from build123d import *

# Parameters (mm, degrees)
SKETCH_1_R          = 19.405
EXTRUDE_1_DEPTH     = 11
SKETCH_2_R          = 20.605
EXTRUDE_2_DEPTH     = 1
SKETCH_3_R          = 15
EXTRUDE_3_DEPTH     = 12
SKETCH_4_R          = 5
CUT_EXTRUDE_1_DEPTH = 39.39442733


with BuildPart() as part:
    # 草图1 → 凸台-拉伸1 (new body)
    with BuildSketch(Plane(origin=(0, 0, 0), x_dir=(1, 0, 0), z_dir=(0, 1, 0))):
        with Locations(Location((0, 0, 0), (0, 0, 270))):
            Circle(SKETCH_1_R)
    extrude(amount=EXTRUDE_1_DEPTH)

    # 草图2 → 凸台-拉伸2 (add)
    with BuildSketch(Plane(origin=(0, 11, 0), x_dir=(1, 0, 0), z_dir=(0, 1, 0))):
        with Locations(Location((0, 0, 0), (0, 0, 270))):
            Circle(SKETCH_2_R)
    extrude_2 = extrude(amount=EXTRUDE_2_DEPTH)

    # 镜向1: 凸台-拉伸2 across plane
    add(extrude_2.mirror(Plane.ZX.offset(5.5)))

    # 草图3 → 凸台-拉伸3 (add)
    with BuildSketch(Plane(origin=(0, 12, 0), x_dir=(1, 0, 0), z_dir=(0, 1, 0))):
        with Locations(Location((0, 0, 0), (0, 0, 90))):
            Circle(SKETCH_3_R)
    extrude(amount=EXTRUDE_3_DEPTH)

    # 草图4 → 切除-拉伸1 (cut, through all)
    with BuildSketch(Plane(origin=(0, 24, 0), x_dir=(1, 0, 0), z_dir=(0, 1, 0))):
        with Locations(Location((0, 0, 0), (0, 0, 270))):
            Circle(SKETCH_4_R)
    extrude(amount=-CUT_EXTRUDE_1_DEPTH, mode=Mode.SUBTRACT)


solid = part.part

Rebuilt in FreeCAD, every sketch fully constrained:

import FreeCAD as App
import Part
import Sketcher

V = App.Vector
Q = App.Units.Quantity

doc = App.newDocument("Part")
body = doc.addObject("PartDesign::Body", "Body")

sketch1 = doc.addObject("Sketcher::SketchObject", "Sketch")
body.addObject(sketch1)
sketch1.AttachmentSupport = (doc.XZ_Plane, [""])
sketch1.MapMode = "FlatFace"
sketch1.addGeometry(Part.Circle(V(0, 0, 0), V(0, 0, 1), 19), False)
sketch1.addConstraint([
    Sketcher.Constraint("Coincident", 0, 3, -1, 1),
    Sketcher.Constraint("Diameter", 0, Q("38.81 mm")),
])
pad1 = doc.addObject("PartDesign::Pad", "Pad")
body.addObject(pad1)
pad1.Profile = sketch1
pad1.Length = 11
pad1.Reversed = True

sketch2 = doc.addObject("Sketcher::SketchObject", "Sketch001")
body.addObject(sketch2)
sketch2.AttachmentSupport = (doc.XZ_Plane, [""])
sketch2.MapMode = "FlatFace"
sketch2.AttachmentOffset = App.Placement(V(0, 0, -11), App.Rotation())
sketch2.addGeometry(Part.Circle(V(0, 0, 0), V(0, 0, 1), 21), False)
sketch2.addConstraint([
    Sketcher.Constraint("Coincident", 0, 3, -1, 1),
    Sketcher.Constraint("Diameter", 0, Q("41.21 mm")),
])
pad2 = doc.addObject("PartDesign::Pad", "Pad001")
body.addObject(pad2)
pad2.Profile = sketch2
pad2.Length = 1
pad2.Reversed = True
doc.recompute()

datumplane = doc.addObject("PartDesign::Plane", "DatumPlane")
body.addObject(datumplane)
datumplane.AttachmentSupport = (doc.XZ_Plane, [""])
datumplane.MapMode = "FlatFace"
datumplane.AttachmentOffset = App.Placement(V(0, 0, -5.5), App.Rotation())
mirrored = doc.addObject("PartDesign::Mirrored", "Mirrored")
body.addObject(mirrored)
mirrored.Originals = [pad2]
mirrored.MirrorPlane = (datumplane, [""])
body.Tip = mirrored

sketch3 = doc.addObject("Sketcher::SketchObject", "Sketch002")
body.addObject(sketch3)
sketch3.AttachmentSupport = (doc.XZ_Plane, [""])
sketch3.MapMode = "FlatFace"
sketch3.AttachmentOffset = App.Placement(V(0, 0, -12), App.Rotation())
sketch3.addGeometry(Part.Circle(V(0, 0, 0), V(0, 0, 1), 15), False)
sketch3.addConstraint([
    Sketcher.Constraint("Coincident", 0, 3, -1, 1),
    Sketcher.Constraint("Diameter", 0, Q("30 mm")),
])
pad3 = doc.addObject("PartDesign::Pad", "Pad002")
body.addObject(pad3)
pad3.Profile = sketch3
pad3.Length = 12
pad3.Reversed = True

sketch4 = doc.addObject("Sketcher::SketchObject", "Sketch003")
body.addObject(sketch4)
sketch4.AttachmentSupport = (doc.XZ_Plane, [""])
sketch4.MapMode = "FlatFace"
sketch4.AttachmentOffset = App.Placement(V(0, 0, -24), App.Rotation())
sketch4.addGeometry(Part.Circle(V(0, 0, 0), V(0, 0, 1), 5), False)
sketch4.addConstraint([
    Sketcher.Constraint("Coincident", 0, 3, -1, 1),
    Sketcher.Constraint("Diameter", 0, Q("10 mm")),
])
pocket1 = doc.addObject("PartDesign::Pocket", "Pocket")
body.addObject(pocket1)
pocket1.Profile = sketch4
pocket1.Type = "ThroughAll"
pocket1.Reversed = True

doc.recompute()
